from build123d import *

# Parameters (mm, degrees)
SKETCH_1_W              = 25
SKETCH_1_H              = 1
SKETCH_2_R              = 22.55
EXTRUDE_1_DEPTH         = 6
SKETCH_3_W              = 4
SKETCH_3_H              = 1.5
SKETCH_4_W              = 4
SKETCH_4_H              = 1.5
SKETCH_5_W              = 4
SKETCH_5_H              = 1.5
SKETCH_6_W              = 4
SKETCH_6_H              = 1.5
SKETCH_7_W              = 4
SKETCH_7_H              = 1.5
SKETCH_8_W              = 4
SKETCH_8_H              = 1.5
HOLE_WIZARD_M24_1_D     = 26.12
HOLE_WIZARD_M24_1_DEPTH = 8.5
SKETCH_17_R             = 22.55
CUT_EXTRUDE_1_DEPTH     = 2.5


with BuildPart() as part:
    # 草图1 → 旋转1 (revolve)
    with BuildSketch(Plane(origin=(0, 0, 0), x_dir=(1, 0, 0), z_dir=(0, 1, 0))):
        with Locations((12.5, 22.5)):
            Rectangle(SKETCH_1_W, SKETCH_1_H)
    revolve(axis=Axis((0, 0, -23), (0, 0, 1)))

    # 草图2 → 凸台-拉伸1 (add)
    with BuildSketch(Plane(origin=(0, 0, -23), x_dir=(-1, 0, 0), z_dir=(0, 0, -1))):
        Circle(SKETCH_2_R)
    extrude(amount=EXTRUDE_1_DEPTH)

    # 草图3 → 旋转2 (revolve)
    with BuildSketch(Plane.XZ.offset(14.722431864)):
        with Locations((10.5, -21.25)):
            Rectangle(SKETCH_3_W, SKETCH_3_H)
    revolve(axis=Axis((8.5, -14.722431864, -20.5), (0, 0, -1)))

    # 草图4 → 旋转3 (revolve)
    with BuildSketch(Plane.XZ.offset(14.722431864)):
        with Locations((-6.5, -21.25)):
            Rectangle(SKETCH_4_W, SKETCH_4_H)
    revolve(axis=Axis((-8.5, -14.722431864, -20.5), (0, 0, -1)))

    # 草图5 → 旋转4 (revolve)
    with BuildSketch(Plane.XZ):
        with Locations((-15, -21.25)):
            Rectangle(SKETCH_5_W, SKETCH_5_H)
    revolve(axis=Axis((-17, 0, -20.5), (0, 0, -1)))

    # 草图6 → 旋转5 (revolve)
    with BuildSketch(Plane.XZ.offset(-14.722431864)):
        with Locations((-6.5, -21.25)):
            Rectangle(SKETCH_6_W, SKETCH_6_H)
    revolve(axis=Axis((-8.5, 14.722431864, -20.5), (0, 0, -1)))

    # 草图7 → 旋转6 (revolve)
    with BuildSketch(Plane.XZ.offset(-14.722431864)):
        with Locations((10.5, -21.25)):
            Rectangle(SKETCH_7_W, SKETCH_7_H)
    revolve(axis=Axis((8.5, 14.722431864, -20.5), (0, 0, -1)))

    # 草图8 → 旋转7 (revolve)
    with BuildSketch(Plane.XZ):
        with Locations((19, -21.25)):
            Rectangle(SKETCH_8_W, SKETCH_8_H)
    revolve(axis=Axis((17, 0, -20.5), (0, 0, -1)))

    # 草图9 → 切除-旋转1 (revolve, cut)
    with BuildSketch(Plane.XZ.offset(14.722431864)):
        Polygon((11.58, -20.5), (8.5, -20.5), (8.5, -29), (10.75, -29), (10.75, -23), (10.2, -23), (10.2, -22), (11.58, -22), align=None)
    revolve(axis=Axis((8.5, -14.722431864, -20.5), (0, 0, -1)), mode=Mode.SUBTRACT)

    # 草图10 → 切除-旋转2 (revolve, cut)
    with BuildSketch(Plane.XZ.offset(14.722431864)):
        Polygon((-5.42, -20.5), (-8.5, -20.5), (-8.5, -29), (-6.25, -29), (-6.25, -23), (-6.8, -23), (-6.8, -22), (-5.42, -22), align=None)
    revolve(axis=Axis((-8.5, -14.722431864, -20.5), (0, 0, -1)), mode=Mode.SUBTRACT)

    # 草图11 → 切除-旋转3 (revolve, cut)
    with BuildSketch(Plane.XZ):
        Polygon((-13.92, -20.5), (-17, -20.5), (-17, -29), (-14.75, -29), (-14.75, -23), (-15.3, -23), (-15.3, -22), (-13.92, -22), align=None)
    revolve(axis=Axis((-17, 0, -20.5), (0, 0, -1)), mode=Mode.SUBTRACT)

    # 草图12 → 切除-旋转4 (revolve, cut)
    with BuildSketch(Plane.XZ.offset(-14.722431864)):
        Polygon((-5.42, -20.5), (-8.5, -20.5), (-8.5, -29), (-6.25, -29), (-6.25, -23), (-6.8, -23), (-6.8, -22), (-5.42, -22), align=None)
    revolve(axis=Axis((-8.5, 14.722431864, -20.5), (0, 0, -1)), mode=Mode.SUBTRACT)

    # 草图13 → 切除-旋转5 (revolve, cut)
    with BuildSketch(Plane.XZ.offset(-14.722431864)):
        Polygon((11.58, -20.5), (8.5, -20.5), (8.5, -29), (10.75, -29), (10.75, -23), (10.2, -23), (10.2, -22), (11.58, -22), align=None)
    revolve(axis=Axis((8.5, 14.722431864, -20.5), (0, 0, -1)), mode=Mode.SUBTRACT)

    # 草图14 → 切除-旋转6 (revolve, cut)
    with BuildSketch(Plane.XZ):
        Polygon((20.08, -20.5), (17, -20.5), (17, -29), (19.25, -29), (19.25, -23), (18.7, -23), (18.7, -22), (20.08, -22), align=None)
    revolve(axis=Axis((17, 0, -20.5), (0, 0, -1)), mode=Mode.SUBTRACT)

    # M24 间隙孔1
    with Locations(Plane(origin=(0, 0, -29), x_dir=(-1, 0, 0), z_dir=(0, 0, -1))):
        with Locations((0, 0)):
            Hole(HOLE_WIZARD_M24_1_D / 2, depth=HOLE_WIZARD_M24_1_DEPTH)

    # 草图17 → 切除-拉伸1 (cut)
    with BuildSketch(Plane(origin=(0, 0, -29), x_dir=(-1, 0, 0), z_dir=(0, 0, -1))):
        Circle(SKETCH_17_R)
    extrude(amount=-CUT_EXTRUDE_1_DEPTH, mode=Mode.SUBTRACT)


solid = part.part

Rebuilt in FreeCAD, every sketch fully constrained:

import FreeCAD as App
import Part
import Sketcher

V = App.Vector
Q = App.Units.Quantity


def add_polygon(sketch, points):
    """Adds a closed chain of lines whose ends are joined by coincident constraints."""
    first, n = sketch.GeometryCount, len(points)
    for a, b in zip(points, points[1:] + points[:1]):
        sketch.addGeometry(Part.LineSegment(App.Vector(*a, 0), App.Vector(*b, 0)), False)
    for i in range(n):
        sketch.addConstraint(Sketcher.Constraint("Coincident", first + i, 2, first + (i + 1) % n, 1))

doc = App.newDocument("Part")
params = doc.addObject("Spreadsheet::Sheet", "Params")
for row, (alias, value) in enumerate([
    ("sketch1_width", "25 mm"),
    ("sketch1_height", "1 mm"),
    ("revolution_angle", "360 deg"),
    ("sketch2_diameter", "45.1 mm"),
    ("pad1_length", "6 mm"),
    ("sketch3_width", "4 mm"),
    ("sketch3_height", "1.5 mm"),
    ("revolution2_angle", "360 deg"),
    ("sketch4_width", "4 mm"),
    ("sketch4_height", "1.5 mm"),
    ("revolution3_angle", "360 deg"),
    ("sketch5_width", "4 mm"),
    ("sketch5_height", "1.5 mm"),
    ("revolution4_angle", "360 deg"),
    ("sketch6_width", "4 mm"),
    ("sketch6_height", "1.5 mm"),
    ("revolution5_angle", "360 deg"),
    ("sketch7_width", "4 mm"),
    ("sketch7_height", "1.5 mm"),
    ("revolution6_angle", "360 deg"),
    ("sketch8_width", "4 mm"),
    ("sketch8_height", "1.5 mm"),
    ("revolution7_angle", "360 deg"),
    ("sketch9_height", "6 mm"),
    ("sketch9_height2", "1 mm"),
    ("sketch9_height3", "8.5 mm"),
    ("sketch9_width", "3.08 mm"),
    ("sketch9_width2", "2.25 mm"),
    ("groove_angle", "360 deg"),
    ("sketch10_height", "6 mm"),
    ("sketch10_height2", "1 mm"),
    ("sketch10_height3", "8.5 mm"),
    ("sketch10_width", "3.08 mm"),
    ("sketch10_width2", "2.25 mm"),
    ("groove2_angle", "360 deg"),
    ("sketch11_height", "6 mm"),
    ("sketch11_height2", "1 mm"),
    ("sketch11_height3", "8.5 mm"),
    ("sketch11_width", "3.08 mm"),
    ("sketch11_width2", "2.25 mm"),
    ("groove3_angle", "360 deg"),
    ("sketch12_height", "6 mm"),
    ("sketch12_height2", "1 mm"),
    ("sketch12_height3", "8.5 mm"),
    ("sketch12_width", "3.08 mm"),
    ("sketch12_width2", "2.25 mm"),
    ("groove4_angle", "360 deg"),
    ("sketch13_height", "6 mm"),
    ("sketch13_height2", "1 mm"),
    ("sketch13_height3", "8.5 mm"),
    ("sketch13_width", "3.08 mm"),
    ("sketch13_width2", "2.25 mm"),
    ("groove5_angle", "360 deg"),
    ("sketch14_height", "6 mm"),
    ("sketch14_height2", "1 mm"),
    ("sketch14_height3", "8.5 mm"),
    ("sketch14_width", "3.08 mm"),
    ("sketch14_width2", "2.25 mm"),
    ("groove6_angle", "360 deg"),
    ("sketch15_diameter", "26.12 mm"),
    ("hole_diameter", "26.12 mm"),
    ("hole_depth", "8.5 mm"),
    ("sketch16_diameter", "45.1 mm"),
    ("pocket1_length", "2.5 mm"),
], start=1):
    params.set(f"A{row}", alias)
    params.set(f"B{row}", "=" + value)
    params.setAlias(f"B{row}", alias)

body = doc.addObject("PartDesign::Body", "Body")

# Sketch on XZ plane
sketch1 = body.newObject("Sketcher::SketchObject", "Sketch")
sketch1.AttachmentSupport = (doc.getObject("XZ_Plane"), [""])
sketch1.MapMode = "FlatFace"
add_polygon(sketch1, [(0, -23), (0, -22), (25, -22), (25, -23)])  # lines 0-3
sketch1.addConstraint(Sketcher.Constraint("Vertical", 0))
sketch1.addConstraint(Sketcher.Constraint("Horizontal", 1))
sketch1.addConstraint(Sketcher.Constraint("Vertical", 2))
sketch1.addConstraint(Sketcher.Constraint("Horizontal", 3))
sketch1.addConstraint(Sketcher.Constraint("PointOnObject", 0, 2, -2))
sketch1.addConstraint(Sketcher.Constraint("DistanceX", 1, 1, 1, 2, Q("25 mm")))
sketch1.addConstraint(Sketcher.Constraint("DistanceY", 0, 1, 0, 2, Q("1 mm")))
sketch1.addConstraint(Sketcher.Constraint("DistanceY", 0, 2, -1, 1, Q("22 mm")))
sketch1.setExpression("Constraints[9]", "Params.sketch1_width")
sketch1.setExpression("Constraints[10]", "Params.sketch1_height")
revolution = body.newObject("PartDesign::Revolution", "Revolution")
revolution.Profile = sketch1
revolution.ReferenceAxis = (sketch1, ["V_Axis"])
revolution.setExpression("Angle", "Params.revolution_angle")

# Sketch on XY plane
sketch2 = body.newObject("Sketcher::SketchObject", "Sketch001")
sketch2.AttachmentSupport = (doc.getObject("XY_Plane"), [""])
sketch2.MapMode = "FlatFace"
sketch2.AttachmentOffset = App.Placement(V(0, 0, -23), App.Rotation())
sketch2.addGeometry(Part.Circle(V(0, 0, 0), V(0, 0, 1), 22.55), False)
sketch2.addConstraint(Sketcher.Constraint("Coincident", 0, 3, -1, 1))
sketch2.addConstraint(Sketcher.Constraint("Diameter", 0, Q("45.1 mm")))
sketch2.setExpression("Constraints[1]", "Params.sketch2_diameter")
pad1 = body.newObject("PartDesign::Pad", "Pad")
pad1.Profile = sketch2
pad1.setExpression("Length", "Params.pad1_length")
pad1.Reversed = True

# Sketch on XZ plane
sketch3 = body.newObject("Sketcher::SketchObject", "Sketch002")
sketch3.AttachmentSupport = (doc.getObject("XZ_Plane"), [""])
sketch3.MapMode = "FlatFace"
sketch3.AttachmentOffset = App.Placement(V(0, 0, 14.722432), App.Rotation())
add_polygon(sketch3, [(8.5, -20.5), (8.5, -22), (12.5, -22), (12.5, -20.5)])  # lines 0-3
sketch3.addGeometry(Part.LineSegment(V(8.5, -20.5, 0), V(8.5, -22, 0)), True)  # axis
sketch3.addConstraint(Sketcher.Constraint("Vertical", 0))
sketch3.addConstraint(Sketcher.Constraint("Horizontal", 1))
sketch3.addConstraint(Sketcher.Constraint("Vertical", 2))
sketch3.addConstraint(Sketcher.Constraint("Horizontal", 3))
sketch3.addConstraint(Sketcher.Constraint("Vertical", 4))
sketch3.addConstraint(Sketcher.Constraint("Coincident", 4, 1, 3, 2))
sketch3.addConstraint(Sketcher.Constraint("Horizontal", 1, 2, 4, 2))
sketch3.addConstraint(Sketcher.Constraint("DistanceX", 1, 1, 1, 2, Q("4 mm")))
sketch3.addConstraint(Sketcher.Constraint("DistanceY", 0, 2, 0, 1, Q("1.5 mm")))
sketch3.addConstraint(Sketcher.Constraint("DistanceY", 0, 2, -1, 1, Q("22 mm")))
sketch3.addConstraint(Sketcher.Constraint("DistanceX", -1, 1, 0, 2, Q("8.5 mm")))
sketch3.setExpression("Constraints[11]", "Params.sketch3_width")
sketch3.setExpression("Constraints[12]", "Params.sketch3_height")
revolution2 = body.newObject("PartDesign::Revolution", "Revolution001")
revolution2.Profile = sketch3
revolution2.ReferenceAxis = (sketch3, ["Axis0"])
revolution2.setExpression("Angle", "Params.revolution2_angle")

# Sketch on XZ plane
sketch4 = body.newObject("Sketcher::SketchObject", "Sketch003")
sketch4.AttachmentSupport = (doc.getObject("XZ_Plane"), [""])
sketch4.MapMode = "FlatFace"
sketch4.AttachmentOffset = App.Placement(V(0, 0, 14.722432), App.Rotation())
add_polygon(sketch4, [(-8.5, -20.5), (-8.5, -22), (-4.5, -22), (-4.5, -20.5)])  # lines 0-3
sketch4.addGeometry(Part.LineSegment(V(-8.5, -20.5, 0), V(-8.5, -22, 0)), True)  # axis
sketch4.addConstraint(Sketcher.Constraint("Vertical", 0))
sketch4.addConstraint(Sketcher.Constraint("Horizontal", 1))
sketch4.addConstraint(Sketcher.Constraint("Vertical", 2))
sketch4.addConstraint(Sketcher.Constraint("Horizontal", 3))
sketch4.addConstraint(Sketcher.Constraint("Vertical", 4))
sketch4.addConstraint(Sketcher.Constraint("Coincident", 4, 1, 3, 2))
sketch4.addConstraint(Sketcher.Constraint("Horizontal", 1, 2, 4, 2))
sketch4.addConstraint(Sketcher.Constraint("DistanceX", 1, 1, 1, 2, Q("4 mm")))
sketch4.addConstraint(Sketcher.Constraint("DistanceY", 0, 2, 0, 1, Q("1.5 mm")))
sketch4.addConstraint(Sketcher.Constraint("DistanceY", 0, 2, -1, 1, Q("22 mm")))
sketch4.addConstraint(Sketcher.Constraint("DistanceX", 0, 2, -1, 1, Q("8.5 mm")))
sketch4.setExpression("Constraints[11]", "Params.sketch4_width")
sketch4.setExpression("Constraints[12]", "Params.sketch4_height")
revolution3 = body.newObject("PartDesign::Revolution", "Revolution002")
revolution3.Profile = sketch4
revolution3.ReferenceAxis = (sketch4, ["Axis0"])
revolution3.setExpression("Angle", "Params.revolution3_angle")

# Sketch on XZ plane
sketch5 = body.newObject("Sketcher::SketchObject", "Sketch004")
sketch5.AttachmentSupport = (doc.getObject("XZ_Plane"), [""])
sketch5.MapMode = "FlatFace"
add_polygon(sketch5, [(-17, -20.5), (-17, -22), (-13, -22), (-13, -20.5)])  # lines 0-3
sketch5.addGeometry(Part.LineSegment(V(-17, -20.5, 0), V(-17, -22, 0)), True)  # axis
sketch5.addConstraint(Sketcher.Constraint("Vertical", 0))
sketch5.addConstraint(Sketcher.Constraint("Horizontal", 1))
sketch5.addConstraint(Sketcher.Constraint("Vertical", 2))
sketch5.addConstraint(Sketcher.Constraint("Horizontal", 3))
sketch5.addConstraint(Sketcher.Constraint("Vertical", 4))
sketch5.addConstraint(Sketcher.Constraint("Coincident", 4, 1, 3, 2))
sketch5.addConstraint(Sketcher.Constraint("Horizontal", 1, 2, 4, 2))
sketch5.addConstraint(Sketcher.Constraint("DistanceX", 1, 1, 1, 2, Q("4 mm")))
sketch5.addConstraint(Sketcher.Constraint("DistanceY", 0, 2, 0, 1, Q("1.5 mm")))
sketch5.addConstraint(Sketcher.Constraint("DistanceX", 0, 2, -1, 1, Q("17 mm")))
sketch5.addConstraint(Sketcher.Constraint("DistanceY", 0, 2, -1, 1, Q("22 mm")))
sketch5.setExpression("Constraints[11]", "Params.sketch5_width")
sketch5.setExpression("Constraints[12]", "Params.sketch5_height")
revolution4 = body.newObject("PartDesign::Revolution", "Revolution003")
revolution4.Profile = sketch5
revolution4.ReferenceAxis = (sketch5, ["Axis0"])
revolution4.setExpression("Angle", "Params.revolution4_angle")

# Sketch on XZ plane
sketch6 = body.newObject("Sketcher::SketchObject", "Sketch005")
sketch6.AttachmentSupport = (doc.getObject("XZ_Plane"), [""])
sketch6.MapMode = "FlatFace"
sketch6.AttachmentOffset = App.Placement(V(0, 0, -14.722432), App.Rotation())
add_polygon(sketch6, [(-8.5, -20.5), (-8.5, -22), (-4.5, -22), (-4.5, -20.5)])  # lines 0-3
sketch6.addGeometry(Part.LineSegment(V(-8.5, -20.5, 0), V(-8.5, -22, 0)), True)  # axis
sketch6.addConstraint(Sketcher.Constraint("Vertical", 0))
sketch6.addConstraint(Sketcher.Constraint("Horizontal", 1))
sketch6.addConstraint(Sketcher.Constraint("Vertical", 2))
sketch6.addConstraint(Sketcher.Constraint("Horizontal", 3))
sketch6.addConstraint(Sketcher.Constraint("Vertical", 4))
sketch6.addConstraint(Sketcher.Constraint("Coincident", 4, 1, 3, 2))
sketch6.addConstraint(Sketcher.Constraint("Horizontal", 1, 2, 4, 2))
sketch6.addConstraint(Sketcher.Constraint("DistanceX", 1, 1, 1, 2, Q("4 mm")))
sketch6.addConstraint(Sketcher.Constraint("DistanceY", 0, 2, 0, 1, Q("1.5 mm")))
sketch6.addConstraint(Sketcher.Constraint("DistanceY", 0, 2, -1, 1, Q("22 mm")))
sketch6.addConstraint(Sketcher.Constraint("DistanceX", 0, 2, -1, 1, Q("8.5 mm")))
sketch6.setExpression("Constraints[11]", "Params.sketch6_width")
sketch6.setExpression("Constraints[12]", "Params.sketch6_height")
revolution5 = body.newObject("PartDesign::Revolution", "Revolution004")
revolution5.Profile = sketch6
revolution5.ReferenceAxis = (sketch6, ["Axis0"])
revolution5.setExpression("Angle", "Params.revolution5_angle")

# Sketch on XZ plane
sketch7 = body.newObject("Sketcher::SketchObject", "Sketch006")
sketch7.AttachmentSupport = (doc.getObject("XZ_Plane"), [""])
sketch7.MapMode = "FlatFace"
sketch7.AttachmentOffset = App.Placement(V(0, 0, -14.722432), App.Rotation())
add_polygon(sketch7, [(8.5, -20.5), (8.5, -22), (12.5, -22), (12.5, -20.5)])  # lines 0-3
sketch7.addGeometry(Part.LineSegment(V(8.5, -20.5, 0), V(8.5, -22, 0)), True)  # axis
sketch7.addConstraint(Sketcher.Constraint("Vertical", 0))
sketch7.addConstraint(Sketcher.Constraint("Horizontal", 1))
sketch7.addConstraint(Sketcher.Constraint("Vertical", 2))
sketch7.addConstraint(Sketcher.Constraint("Horizontal", 3))
sketch7.addConstraint(Sketcher.Constraint("Vertical", 4))
sketch7.addConstraint(Sketcher.Constraint("Coincident", 4, 1, 3, 2))
sketch7.addConstraint(Sketcher.Constraint("Horizontal", 1, 2, 4, 2))
sketch7.addConstraint(Sketcher.Constraint("DistanceX", 1, 1, 1, 2, Q("4 mm")))
sketch7.addConstraint(Sketcher.Constraint("DistanceY", 0, 2, 0, 1, Q("1.5 mm")))
sketch7.addConstraint(Sketcher.Constraint("DistanceY", 0, 2, -1, 1, Q("22 mm")))
sketch7.addConstraint(Sketcher.Constraint("DistanceX", -1, 1, 0, 2, Q("8.5 mm")))
sketch7.setExpression("Constraints[11]", "Params.sketch7_width")
sketch7.setExpression("Constraints[12]", "Params.sketch7_height")
revolution6 = body.newObject("PartDesign::Revolution", "Revolution005")
revolution6.Profile = sketch7
revolution6.ReferenceAxis = (sketch7, ["Axis0"])
revolution6.setExpression("Angle", "Params.revolution6_angle")

# Sketch on XZ plane
sketch8 = body.newObject("Sketcher::SketchObject", "Sketch007")
sketch8.AttachmentSupport = (doc.getObject("XZ_Plane"), [""])
sketch8.MapMode = "FlatFace"
add_polygon(sketch8, [(17, -20.5), (17, -22), (21, -22), (21, -20.5)])  # lines 0-3
sketch8.addGeometry(Part.LineSegment(V(17, -20.5, 0), V(17, -22, 0)), True)  # axis
sketch8.addConstraint(Sketcher.Constraint("Vertical", 0))
sketch8.addConstraint(Sketcher.Constraint("Horizontal", 1))
sketch8.addConstraint(Sketcher.Constraint("Vertical", 2))
sketch8.addConstraint(Sketcher.Constraint("Horizontal", 3))
sketch8.addConstraint(Sketcher.Constraint("Vertical", 4))
sketch8.addConstraint(Sketcher.Constraint("Coincident", 4, 1, 3, 2))
sketch8.addConstraint(Sketcher.Constraint("Horizontal", 1, 2, 4, 2))
sketch8.addConstraint(Sketcher.Constraint("DistanceX", 1, 1, 1, 2, Q("4 mm")))
sketch8.addConstraint(Sketcher.Constraint("DistanceY", 0, 2, 0, 1, Q("1.5 mm")))
sketch8.addConstraint(Sketcher.Constraint("DistanceX", -1, 1, 0, 2, Q("17 mm")))
sketch8.addConstraint(Sketcher.Constraint("DistanceY", 0, 2, -1, 1, Q("22 mm")))
sketch8.setExpression("Constraints[11]", "Params.sketch8_width")
sketch8.setExpression("Constraints[12]", "Params.sketch8_height")
revolution7 = body.newObject("PartDesign::Revolution", "Revolution006")
revolution7.Profile = sketch8
revolution7.ReferenceAxis = (sketch8, ["Axis0"])
revolution7.setExpression("Angle", "Params.revolution7_angle")

# Sketch on XZ plane
sketch9 = body.newObject("Sketcher::SketchObject", "Sketch008")
sketch9.AttachmentSupport = (doc.getObject("XZ_Plane"), [""])
sketch9.MapMode = "FlatFace"
sketch9.AttachmentOffset = App.Placement(V(0, 0, 14.722432), App.Rotation())
add_polygon(sketch9, [(11.58, -20.5), (8.5, -20.5), (8.5, -29), (10.75, -29), (10.75, -23), (10.2, -23), (10.2, -22), (11.58, -22)])  # lines 0-7
sketch9.addGeometry(Part.LineSegment(V(8.5, -20.5, 0), V(8.5, -29, 0)), True)  # axis
sketch9.addConstraint(Sketcher.Constraint("Horizontal", 0))
sketch9.addConstraint(Sketcher.Constraint("Vertical", 1))
sketch9.addConstraint(Sketcher.Constraint("Horizontal", 2))
sketch9.addConstraint(Sketcher.Constraint("Vertical", 3))
sketch9.addConstraint(Sketcher.Constraint("Horizontal", 4))
sketch9.addConstraint(Sketcher.Constraint("Vertical", 5))
sketch9.addConstraint(Sketcher.Constraint("Horizontal", 6))
sketch9.addConstraint(Sketcher.Constraint("Vertical", 7))
sketch9.addConstraint(Sketcher.Constraint("Vertical", 8))
sketch9.addConstraint(Sketcher.Constraint("Coincident", 8, 1, 0, 2))
sketch9.addConstraint(Sketcher.Constraint("Horizontal", 2, 2, 8, 2))
sketch9.addConstraint(Sketcher.Constraint("DistanceY", 3, 1, 3, 2, Q("6 mm")))
sketch9.addConstraint(Sketcher.Constraint("DistanceY", 5, 1, 5, 2, Q("1 mm")))
sketch9.addConstraint(Sketcher.Constraint("DistanceY", 1, 2, 1, 1, Q("8.5 mm")))
sketch9.addConstraint(Sketcher.Constraint("DistanceY", 1, 2, -1, 1, Q("29 mm")))
sketch9.addConstraint(Sketcher.Constraint("DistanceX", 0, 2, 0, 1, Q("3.08 mm")))
sketch9.addConstraint(Sketcher.Constraint("DistanceX", 2, 1, 2, 2, Q("2.25 mm")))
sketch9.addConstraint(Sketcher.Constraint("DistanceX", 4, 2, 4, 1, Q("0.55 mm")))
sketch9.addConstraint(Sketcher.Constraint("DistanceX", -1, 1, 0, 2, Q("8.5 mm")))
sketch9.setExpression("Constraints[19]", "Params.sketch9_height")
sketch9.setExpression("Constraints[20]", "Params.sketch9_height2")
sketch9.setExpression("Constraints[21]", "Params.sketch9_height3")
sketch9.setExpression("Constraints[23]", "Params.sketch9_width")
sketch9.setExpression("Constraints[24]", "Params.sketch9_width2")
groove = body.newObject("PartDesign::Groove", "Groove")
groove.Profile = sketch9
groove.ReferenceAxis = (sketch9, ["Axis0"])
groove.setExpression("Angle", "Params.groove_angle")

# Sketch on XZ plane
sketch10 = body.newObject("Sketcher::SketchObject", "Sketch009")
sketch10.AttachmentSupport = (doc.getObject("XZ_Plane"), [""])
sketch10.MapMode = "FlatFace"
sketch10.AttachmentOffset = App.Placement(V(0, 0, 14.722432), App.Rotation())
add_polygon(sketch10, [(-5.42, -20.5), (-8.5, -20.5), (-8.5, -29), (-6.25, -29), (-6.25, -23), (-6.8, -23), (-6.8, -22), (-5.42, -22)])  # lines 0-7
sketch10.addGeometry(Part.LineSegment(V(-8.5, -20.5, 0), V(-8.5, -29, 0)), True)  # axis
sketch10.addConstraint(Sketcher.Constraint("Horizontal", 0))
sketch10.addConstraint(Sketcher.Constraint("Vertical", 1))
sketch10.addConstraint(Sketcher.Constraint("Horizontal", 2))
sketch10.addConstraint(Sketcher.Constraint("Vertical", 3))
sketch10.addConstraint(Sketcher.Constraint("Horizontal", 4))
sketch10.addConstraint(Sketcher.Constraint("Vertical", 5))
sketch10.addConstraint(Sketcher.Constraint("Horizontal", 6))
sketch10.addConstraint(Sketcher.Constraint("Vertical", 7))
sketch10.addConstraint(Sketcher.Constraint("Vertical", 8))
sketch10.addConstraint(Sketcher.Constraint("Coincident", 8, 1, 0, 2))
sketch10.addConstraint(Sketcher.Constraint("Horizontal", 2, 2, 8, 2))
sketch10.addConstraint(Sketcher.Constraint("DistanceY", 3, 1, 3, 2, Q("6 mm")))
sketch10.addConstraint(Sketcher.Constraint("DistanceY", 5, 1, 5, 2, Q("1 mm")))
sketch10.addConstraint(Sketcher.Constraint("DistanceY", 1, 2, 1, 1, Q("8.5 mm")))
sketch10.addConstraint(Sketcher.Constraint("DistanceY", 1, 2, -1, 1, Q("29 mm")))
sketch10.addConstraint(Sketcher.Constraint("DistanceX", 0, 2, 0, 1, Q("3.08 mm")))
sketch10.addConstraint(Sketcher.Constraint("DistanceX", 2, 1, 2, 2, Q("2.25 mm")))
sketch10.addConstraint(Sketcher.Constraint("DistanceX", 4, 2, 4, 1, Q("0.55 mm")))
sketch10.addConstraint(Sketcher.Constraint("DistanceX", 0, 2, -1, 1, Q("8.5 mm")))
sketch10.setExpression("Constraints[19]", "Params.sketch10_height")
sketch10.setExpression("Constraints[20]", "Params.sketch10_height2")
sketch10.setExpression("Constraints[21]", "Params.sketch10_height3")
sketch10.setExpression("Constraints[23]", "Params.sketch10_width")
sketch10.setExpression("Constraints[24]", "Params.sketch10_width2")
groove2 = body.newObject("PartDesign::Groove", "Groove001")
groove2.Profile = sketch10
groove2.ReferenceAxis = (sketch10, ["Axis0"])
groove2.setExpression("Angle", "Params.groove2_angle")

# Sketch on XZ plane
sketch11 = body.newObject("Sketcher::SketchObject", "Sketch010")
sketch11.AttachmentSupport = (doc.getObject("XZ_Plane"), [""])
sketch11.MapMode = "FlatFace"
add_polygon(sketch11, [(-13.92, -20.5), (-17, -20.5), (-17, -29), (-14.75, -29), (-14.75, -23), (-15.3, -23), (-15.3, -22), (-13.92, -22)])  # lines 0-7
sketch11.addGeometry(Part.LineSegment(V(-17, -20.5, 0), V(-17, -29, 0)), True)  # axis
sketch11.addConstraint(Sketcher.Constraint("Horizontal", 0))
sketch11.addConstraint(Sketcher.Constraint("Vertical", 1))
sketch11.addConstraint(Sketcher.Constraint("Horizontal", 2))
sketch11.addConstraint(Sketcher.Constraint("Vertical", 3))
sketch11.addConstraint(Sketcher.Constraint("Horizontal", 4))
sketch11.addConstraint(Sketcher.Constraint("Vertical", 5))
sketch11.addConstraint(Sketcher.Constraint("Horizontal", 6))
sketch11.addConstraint(Sketcher.Constraint("Vertical", 7))
sketch11.addConstraint(Sketcher.Constraint("Vertical", 8))
sketch11.addConstraint(Sketcher.Constraint("Coincident", 8, 1, 0, 2))
sketch11.addConstraint(Sketcher.Constraint("Horizontal", 2, 2, 8, 2))
sketch11.addConstraint(Sketcher.Constraint("DistanceY", 3, 1, 3, 2, Q("6 mm")))
sketch11.addConstraint(Sketcher.Constraint("DistanceY", 5, 1, 5, 2, Q("1 mm")))
sketch11.addConstraint(Sketcher.Constraint("DistanceY", 1, 2, 1, 1, Q("8.5 mm")))
sketch11.addConstraint(Sketcher.Constraint("DistanceX", 0, 2, -1, 1, Q("17 mm")))
sketch11.addConstraint(Sketcher.Constraint("DistanceY", 1, 2, -1, 1, Q("29 mm")))
sketch11.addConstraint(Sketcher.Constraint("DistanceX", 0, 2, 0, 1, Q("3.08 mm")))
sketch11.addConstraint(Sketcher.Constraint("DistanceX", 2, 1, 2, 2, Q("2.25 mm")))
sketch11.addConstraint(Sketcher.Constraint("DistanceX", 4, 2, 4, 1, Q("0.55 mm")))
sketch11.setExpression("Constraints[19]", "Params.sketch11_height")
sketch11.setExpression("Constraints[20]", "Params.sketch11_height2")
sketch11.setExpression("Constraints[21]", "Params.sketch11_height3")
sketch11.setExpression("Constraints[24]", "Params.sketch11_width")
sketch11.setExpression("Constraints[25]", "Params.sketch11_width2")
groove3 = body.newObject("PartDesign::Groove", "Groove002")
groove3.Profile = sketch11
groove3.ReferenceAxis = (sketch11, ["Axis0"])
groove3.setExpression("Angle", "Params.groove3_angle")

# Sketch on XZ plane
sketch12 = body.newObject("Sketcher::SketchObject", "Sketch011")
sketch12.AttachmentSupport = (doc.getObject("XZ_Plane"), [""])
sketch12.MapMode = "FlatFace"
sketch12.AttachmentOffset = App.Placement(V(0, 0, -14.722432), App.Rotation())
add_polygon(sketch12, [(-5.42, -20.5), (-8.5, -20.5), (-8.5, -29), (-6.25, -29), (-6.25, -23), (-6.8, -23), (-6.8, -22), (-5.42, -22)])  # lines 0-7
sketch12.addGeometry(Part.LineSegment(V(-8.5, -20.5, 0), V(-8.5, -29, 0)), True)  # axis
sketch12.addConstraint(Sketcher.Constraint("Horizontal", 0))
sketch12.addConstraint(Sketcher.Constraint("Vertical", 1))
sketch12.addConstraint(Sketcher.Constraint("Horizontal", 2))
sketch12.addConstraint(Sketcher.Constraint("Vertical", 3))
sketch12.addConstraint(Sketcher.Constraint("Horizontal", 4))
sketch12.addConstraint(Sketcher.Constraint("Vertical", 5))
sketch12.addConstraint(Sketcher.Constraint("Horizontal", 6))
sketch12.addConstraint(Sketcher.Constraint("Vertical", 7))
sketch12.addConstraint(Sketcher.Constraint("Vertical", 8))
sketch12.addConstraint(Sketcher.Constraint("Coincident", 8, 1, 0, 2))
sketch12.addConstraint(Sketcher.Constraint("Horizontal", 2, 2, 8, 2))
sketch12.addConstraint(Sketcher.Constraint("DistanceY", 3, 1, 3, 2, Q("6 mm")))
sketch12.addConstraint(Sketcher.Constraint("DistanceY", 5, 1, 5, 2, Q("1 mm")))
sketch12.addConstraint(Sketcher.Constraint("DistanceY", 1, 2, 1, 1, Q("8.5 mm")))
sketch12.addConstraint(Sketcher.Constraint("DistanceY", 1, 2, -1, 1, Q("29 mm")))
sketch12.addConstraint(Sketcher.Constraint("DistanceX", 0, 2, 0, 1, Q("3.08 mm")))
sketch12.addConstraint(Sketcher.Constraint("DistanceX", 2, 1, 2, 2, Q("2.25 mm")))
sketch12.addConstraint(Sketcher.Constraint("DistanceX", 4, 2, 4, 1, Q("0.55 mm")))
sketch12.addConstraint(Sketcher.Constraint("DistanceX", 0, 2, -1, 1, Q("8.5 mm")))
sketch12.setExpression("Constraints[19]", "Params.sketch12_height")
sketch12.setExpression("Constraints[20]", "Params.sketch12_height2")
sketch12.setExpression("Constraints[21]", "Params.sketch12_height3")
sketch12.setExpression("Constraints[23]", "Params.sketch12_width")
sketch12.setExpression("Constraints[24]", "Params.sketch12_width2")
groove4 = body.newObject("PartDesign::Groove", "Groove003")
groove4.Profile = sketch12
groove4.ReferenceAxis = (sketch12, ["Axis0"])
groove4.setExpression("Angle", "Params.groove4_angle")

# Sketch on XZ plane
sketch13 = body.newObject("Sketcher::SketchObject", "Sketch012")
sketch13.AttachmentSupport = (doc.getObject("XZ_Plane"), [""])
sketch13.MapMode = "FlatFace"
sketch13.AttachmentOffset = App.Placement(V(0, 0, -14.722432), App.Rotation())
add_polygon(sketch13, [(11.58, -20.5), (8.5, -20.5), (8.5, -29), (10.75, -29), (10.75, -23), (10.2, -23), (10.2, -22), (11.58, -22)])  # lines 0-7
sketch13.addGeometry(Part.LineSegment(V(8.5, -20.5, 0), V(8.5, -29, 0)), True)  # axis
sketch13.addConstraint(Sketcher.Constraint("Horizontal", 0))
sketch13.addConstraint(Sketcher.Constraint("Vertical", 1))
sketch13.addConstraint(Sketcher.Constraint("Horizontal", 2))
sketch13.addConstraint(Sketcher.Constraint("Vertical", 3))
sketch13.addConstraint(Sketcher.Constraint("Horizontal", 4))
sketch13.addConstraint(Sketcher.Constraint("Vertical", 5))
sketch13.addConstraint(Sketcher.Constraint("Horizontal", 6))
sketch13.addConstraint(Sketcher.Constraint("Vertical", 7))
sketch13.addConstraint(Sketcher.Constraint("Vertical", 8))
sketch13.addConstraint(Sketcher.Constraint("Coincident", 8, 1, 0, 2))
sketch13.addConstraint(Sketcher.Constraint("Horizontal", 2, 2, 8, 2))
sketch13.addConstraint(Sketcher.Constraint("DistanceY", 3, 1, 3, 2, Q("6 mm")))
sketch13.addConstraint(Sketcher.Constraint("DistanceY", 5, 1, 5, 2, Q("1 mm")))
sketch13.addConstraint(Sketcher.Constraint("DistanceY", 1, 2, 1, 1, Q("8.5 mm")))
sketch13.addConstraint(Sketcher.Constraint("DistanceY", 1, 2, -1, 1, Q("29 mm")))
sketch13.addConstraint(Sketcher.Constraint("DistanceX", 0, 2, 0, 1, Q("3.08 mm")))
sketch13.addConstraint(Sketcher.Constraint("DistanceX", 2, 1, 2, 2, Q("2.25 mm")))
sketch13.addConstraint(Sketcher.Constraint("DistanceX", 4, 2, 4, 1, Q("0.55 mm")))
sketch13.addConstraint(Sketcher.Constraint("DistanceX", -1, 1, 0, 2, Q("8.5 mm")))
sketch13.setExpression("Constraints[19]", "Params.sketch13_height")
sketch13.setExpression("Constraints[20]", "Params.sketch13_height2")
sketch13.setExpression("Constraints[21]", "Params.sketch13_height3")
sketch13.setExpression("Constraints[23]", "Params.sketch13_width")
sketch13.setExpression("Constraints[24]", "Params.sketch13_width2")
groove5 = body.newObject("PartDesign::Groove", "Groove004")
groove5.Profile = sketch13
groove5.ReferenceAxis = (sketch13, ["Axis0"])
groove5.setExpression("Angle", "Params.groove5_angle")

# Sketch on XZ plane
sketch14 = body.newObject("Sketcher::SketchObject", "Sketch013")
sketch14.AttachmentSupport = (doc.getObject("XZ_Plane"), [""])
sketch14.MapMode = "FlatFace"
add_polygon(sketch14, [(20.08, -20.5), (17, -20.5), (17, -29), (19.25, -29), (19.25, -23), (18.7, -23), (18.7, -22), (20.08, -22)])  # lines 0-7
sketch14.addGeometry(Part.LineSegment(V(17, -20.5, 0), V(17, -29, 0)), True)  # axis
sketch14.addConstraint(Sketcher.Constraint("Horizontal", 0))
sketch14.addConstraint(Sketcher.Constraint("Vertical", 1))
sketch14.addConstraint(Sketcher.Constraint("Horizontal", 2))
sketch14.addConstraint(Sketcher.Constraint("Vertical", 3))
sketch14.addConstraint(Sketcher.Constraint("Horizontal", 4))
sketch14.addConstraint(Sketcher.Constraint("Vertical", 5))
sketch14.addConstraint(Sketcher.Constraint("Horizontal", 6))
sketch14.addConstraint(Sketcher.Constraint("Vertical", 7))
sketch14.addConstraint(Sketcher.Constraint("Vertical", 8))
sketch14.addConstraint(Sketcher.Constraint("Coincident", 8, 1, 0, 2))
sketch14.addConstraint(Sketcher.Constraint("Horizontal", 2, 2, 8, 2))
sketch14.addConstraint(Sketcher.Constraint("DistanceY", 3, 1, 3, 2, Q("6 mm")))
sketch14.addConstraint(Sketcher.Constraint("DistanceY", 5, 1, 5, 2, Q("1 mm")))
sketch14.addConstraint(Sketcher.Constraint("DistanceY", 1, 2, 1, 1, Q("8.5 mm")))
sketch14.addConstraint(Sketcher.Constraint("DistanceX", -1, 1, 0, 2, Q("17 mm")))
sketch14.addConstraint(Sketcher.Constraint("DistanceY", 1, 2, -1, 1, Q("29 mm")))
sketch14.addConstraint(Sketcher.Constraint("DistanceX", 0, 2, 0, 1, Q("3.08 mm")))
sketch14.addConstraint(Sketcher.Constraint("DistanceX", 2, 1, 2, 2, Q("2.25 mm")))
sketch14.addConstraint(Sketcher.Constraint("DistanceX", 4, 2, 4, 1, Q("0.55 mm")))
sketch14.setExpression("Constraints[19]", "Params.sketch14_height")
sketch14.setExpression("Constraints[20]", "Params.sketch14_height2")
sketch14.setExpression("Constraints[21]", "Params.sketch14_height3")
sketch14.setExpression("Constraints[24]", "Params.sketch14_width")
sketch14.setExpression("Constraints[25]", "Params.sketch14_width2")
groove6 = body.newObject("PartDesign::Groove", "Groove005")
groove6.Profile = sketch14
groove6.ReferenceAxis = (sketch14, ["Axis0"])
groove6.setExpression("Angle", "Params.groove6_angle")

# Sketch on XY plane
sketch15 = body.newObject("Sketcher::SketchObject", "Sketch014")
sketch15.AttachmentSupport = (doc.getObject("XY_Plane"), [""])
sketch15.MapMode = "FlatFace"
sketch15.AttachmentOffset = App.Placement(V(0, 0, -29), App.Rotation())
sketch15.addGeometry(Part.Circle(V(0, 0, 0), V(0, 0, 1), 13.06), False)
sketch15.addConstraint(Sketcher.Constraint("Coincident", 0, 3, -1, 1))
sketch15.addConstraint(Sketcher.Constraint("Diameter", 0, Q("26.12 mm")))
sketch15.setExpression("Constraints[1]", "Params.sketch15_diameter")
doc.recompute()
hole = body.newObject("PartDesign::Hole", "Hole")
hole.Profile = sketch15
hole.ThreadType = "None"
hole.setExpression("Diameter", "Params.hole_diameter")
hole.DepthType = "Dimension"
hole.setExpression("Depth", "Params.hole_depth")
hole.DrillPoint = "Flat"
hole.Reversed = True

# Sketch on XY plane
sketch16 = body.newObject("Sketcher::SketchObject", "Sketch015")
sketch16.AttachmentSupport = (doc.getObject("XY_Plane"), [""])
sketch16.MapMode = "FlatFace"
sketch16.AttachmentOffset = App.Placement(V(0, 0, -29), App.Rotation())
sketch16.addGeometry(Part.Circle(V(0, 0, 0), V(0, 0, 1), 22.55), False)
sketch16.addConstraint(Sketcher.Constraint("Coincident", 0, 3, -1, 1))
sketch16.addConstraint(Sketcher.Constraint("Diameter", 0, Q("45.1 mm")))
sketch16.setExpression("Constraints[1]", "Params.sketch16_diameter")
pocket1 = body.newObject("PartDesign::Pocket", "Pocket")
pocket1.Profile = sketch16
pocket1.setExpression("Length", "Params.pocket1_length")
pocket1.Reversed = True

doc.recompute()
